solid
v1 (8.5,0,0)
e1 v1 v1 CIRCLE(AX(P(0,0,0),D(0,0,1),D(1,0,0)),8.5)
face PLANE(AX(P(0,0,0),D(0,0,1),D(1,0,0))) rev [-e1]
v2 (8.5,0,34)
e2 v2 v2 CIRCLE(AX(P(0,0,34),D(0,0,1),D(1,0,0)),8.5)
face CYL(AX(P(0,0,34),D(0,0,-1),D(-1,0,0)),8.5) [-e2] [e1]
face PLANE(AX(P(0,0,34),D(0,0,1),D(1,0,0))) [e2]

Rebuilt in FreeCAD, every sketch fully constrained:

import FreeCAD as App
import Part
import Sketcher
from FreeCAD import Vector

doc = App.newDocument("Part")
body = doc.addObject("PartDesign::Body", "Body")

sketch1 = body.newObject("Sketcher::SketchObject", "Sketch")
sketch1.AttachmentSupport = (doc.getObject("XY_Plane"), [""])
sketch1.MapMode = "FlatFace"
sketch1.addGeometry(Part.Circle(Vector(0, 0, 0), Vector(0, 0, 1), 8), False)
sketch1.addConstraint(Sketcher.Constraint("Coincident", 0, 3, -1, 1))
sketch1.addConstraint(Sketcher.Constraint("Diameter", 0, 17.0))
pad1 = body.newObject("PartDesign::Pad", "Pad")
pad1.Profile = sketch1
pad1.Length = 34

doc.recompute()
